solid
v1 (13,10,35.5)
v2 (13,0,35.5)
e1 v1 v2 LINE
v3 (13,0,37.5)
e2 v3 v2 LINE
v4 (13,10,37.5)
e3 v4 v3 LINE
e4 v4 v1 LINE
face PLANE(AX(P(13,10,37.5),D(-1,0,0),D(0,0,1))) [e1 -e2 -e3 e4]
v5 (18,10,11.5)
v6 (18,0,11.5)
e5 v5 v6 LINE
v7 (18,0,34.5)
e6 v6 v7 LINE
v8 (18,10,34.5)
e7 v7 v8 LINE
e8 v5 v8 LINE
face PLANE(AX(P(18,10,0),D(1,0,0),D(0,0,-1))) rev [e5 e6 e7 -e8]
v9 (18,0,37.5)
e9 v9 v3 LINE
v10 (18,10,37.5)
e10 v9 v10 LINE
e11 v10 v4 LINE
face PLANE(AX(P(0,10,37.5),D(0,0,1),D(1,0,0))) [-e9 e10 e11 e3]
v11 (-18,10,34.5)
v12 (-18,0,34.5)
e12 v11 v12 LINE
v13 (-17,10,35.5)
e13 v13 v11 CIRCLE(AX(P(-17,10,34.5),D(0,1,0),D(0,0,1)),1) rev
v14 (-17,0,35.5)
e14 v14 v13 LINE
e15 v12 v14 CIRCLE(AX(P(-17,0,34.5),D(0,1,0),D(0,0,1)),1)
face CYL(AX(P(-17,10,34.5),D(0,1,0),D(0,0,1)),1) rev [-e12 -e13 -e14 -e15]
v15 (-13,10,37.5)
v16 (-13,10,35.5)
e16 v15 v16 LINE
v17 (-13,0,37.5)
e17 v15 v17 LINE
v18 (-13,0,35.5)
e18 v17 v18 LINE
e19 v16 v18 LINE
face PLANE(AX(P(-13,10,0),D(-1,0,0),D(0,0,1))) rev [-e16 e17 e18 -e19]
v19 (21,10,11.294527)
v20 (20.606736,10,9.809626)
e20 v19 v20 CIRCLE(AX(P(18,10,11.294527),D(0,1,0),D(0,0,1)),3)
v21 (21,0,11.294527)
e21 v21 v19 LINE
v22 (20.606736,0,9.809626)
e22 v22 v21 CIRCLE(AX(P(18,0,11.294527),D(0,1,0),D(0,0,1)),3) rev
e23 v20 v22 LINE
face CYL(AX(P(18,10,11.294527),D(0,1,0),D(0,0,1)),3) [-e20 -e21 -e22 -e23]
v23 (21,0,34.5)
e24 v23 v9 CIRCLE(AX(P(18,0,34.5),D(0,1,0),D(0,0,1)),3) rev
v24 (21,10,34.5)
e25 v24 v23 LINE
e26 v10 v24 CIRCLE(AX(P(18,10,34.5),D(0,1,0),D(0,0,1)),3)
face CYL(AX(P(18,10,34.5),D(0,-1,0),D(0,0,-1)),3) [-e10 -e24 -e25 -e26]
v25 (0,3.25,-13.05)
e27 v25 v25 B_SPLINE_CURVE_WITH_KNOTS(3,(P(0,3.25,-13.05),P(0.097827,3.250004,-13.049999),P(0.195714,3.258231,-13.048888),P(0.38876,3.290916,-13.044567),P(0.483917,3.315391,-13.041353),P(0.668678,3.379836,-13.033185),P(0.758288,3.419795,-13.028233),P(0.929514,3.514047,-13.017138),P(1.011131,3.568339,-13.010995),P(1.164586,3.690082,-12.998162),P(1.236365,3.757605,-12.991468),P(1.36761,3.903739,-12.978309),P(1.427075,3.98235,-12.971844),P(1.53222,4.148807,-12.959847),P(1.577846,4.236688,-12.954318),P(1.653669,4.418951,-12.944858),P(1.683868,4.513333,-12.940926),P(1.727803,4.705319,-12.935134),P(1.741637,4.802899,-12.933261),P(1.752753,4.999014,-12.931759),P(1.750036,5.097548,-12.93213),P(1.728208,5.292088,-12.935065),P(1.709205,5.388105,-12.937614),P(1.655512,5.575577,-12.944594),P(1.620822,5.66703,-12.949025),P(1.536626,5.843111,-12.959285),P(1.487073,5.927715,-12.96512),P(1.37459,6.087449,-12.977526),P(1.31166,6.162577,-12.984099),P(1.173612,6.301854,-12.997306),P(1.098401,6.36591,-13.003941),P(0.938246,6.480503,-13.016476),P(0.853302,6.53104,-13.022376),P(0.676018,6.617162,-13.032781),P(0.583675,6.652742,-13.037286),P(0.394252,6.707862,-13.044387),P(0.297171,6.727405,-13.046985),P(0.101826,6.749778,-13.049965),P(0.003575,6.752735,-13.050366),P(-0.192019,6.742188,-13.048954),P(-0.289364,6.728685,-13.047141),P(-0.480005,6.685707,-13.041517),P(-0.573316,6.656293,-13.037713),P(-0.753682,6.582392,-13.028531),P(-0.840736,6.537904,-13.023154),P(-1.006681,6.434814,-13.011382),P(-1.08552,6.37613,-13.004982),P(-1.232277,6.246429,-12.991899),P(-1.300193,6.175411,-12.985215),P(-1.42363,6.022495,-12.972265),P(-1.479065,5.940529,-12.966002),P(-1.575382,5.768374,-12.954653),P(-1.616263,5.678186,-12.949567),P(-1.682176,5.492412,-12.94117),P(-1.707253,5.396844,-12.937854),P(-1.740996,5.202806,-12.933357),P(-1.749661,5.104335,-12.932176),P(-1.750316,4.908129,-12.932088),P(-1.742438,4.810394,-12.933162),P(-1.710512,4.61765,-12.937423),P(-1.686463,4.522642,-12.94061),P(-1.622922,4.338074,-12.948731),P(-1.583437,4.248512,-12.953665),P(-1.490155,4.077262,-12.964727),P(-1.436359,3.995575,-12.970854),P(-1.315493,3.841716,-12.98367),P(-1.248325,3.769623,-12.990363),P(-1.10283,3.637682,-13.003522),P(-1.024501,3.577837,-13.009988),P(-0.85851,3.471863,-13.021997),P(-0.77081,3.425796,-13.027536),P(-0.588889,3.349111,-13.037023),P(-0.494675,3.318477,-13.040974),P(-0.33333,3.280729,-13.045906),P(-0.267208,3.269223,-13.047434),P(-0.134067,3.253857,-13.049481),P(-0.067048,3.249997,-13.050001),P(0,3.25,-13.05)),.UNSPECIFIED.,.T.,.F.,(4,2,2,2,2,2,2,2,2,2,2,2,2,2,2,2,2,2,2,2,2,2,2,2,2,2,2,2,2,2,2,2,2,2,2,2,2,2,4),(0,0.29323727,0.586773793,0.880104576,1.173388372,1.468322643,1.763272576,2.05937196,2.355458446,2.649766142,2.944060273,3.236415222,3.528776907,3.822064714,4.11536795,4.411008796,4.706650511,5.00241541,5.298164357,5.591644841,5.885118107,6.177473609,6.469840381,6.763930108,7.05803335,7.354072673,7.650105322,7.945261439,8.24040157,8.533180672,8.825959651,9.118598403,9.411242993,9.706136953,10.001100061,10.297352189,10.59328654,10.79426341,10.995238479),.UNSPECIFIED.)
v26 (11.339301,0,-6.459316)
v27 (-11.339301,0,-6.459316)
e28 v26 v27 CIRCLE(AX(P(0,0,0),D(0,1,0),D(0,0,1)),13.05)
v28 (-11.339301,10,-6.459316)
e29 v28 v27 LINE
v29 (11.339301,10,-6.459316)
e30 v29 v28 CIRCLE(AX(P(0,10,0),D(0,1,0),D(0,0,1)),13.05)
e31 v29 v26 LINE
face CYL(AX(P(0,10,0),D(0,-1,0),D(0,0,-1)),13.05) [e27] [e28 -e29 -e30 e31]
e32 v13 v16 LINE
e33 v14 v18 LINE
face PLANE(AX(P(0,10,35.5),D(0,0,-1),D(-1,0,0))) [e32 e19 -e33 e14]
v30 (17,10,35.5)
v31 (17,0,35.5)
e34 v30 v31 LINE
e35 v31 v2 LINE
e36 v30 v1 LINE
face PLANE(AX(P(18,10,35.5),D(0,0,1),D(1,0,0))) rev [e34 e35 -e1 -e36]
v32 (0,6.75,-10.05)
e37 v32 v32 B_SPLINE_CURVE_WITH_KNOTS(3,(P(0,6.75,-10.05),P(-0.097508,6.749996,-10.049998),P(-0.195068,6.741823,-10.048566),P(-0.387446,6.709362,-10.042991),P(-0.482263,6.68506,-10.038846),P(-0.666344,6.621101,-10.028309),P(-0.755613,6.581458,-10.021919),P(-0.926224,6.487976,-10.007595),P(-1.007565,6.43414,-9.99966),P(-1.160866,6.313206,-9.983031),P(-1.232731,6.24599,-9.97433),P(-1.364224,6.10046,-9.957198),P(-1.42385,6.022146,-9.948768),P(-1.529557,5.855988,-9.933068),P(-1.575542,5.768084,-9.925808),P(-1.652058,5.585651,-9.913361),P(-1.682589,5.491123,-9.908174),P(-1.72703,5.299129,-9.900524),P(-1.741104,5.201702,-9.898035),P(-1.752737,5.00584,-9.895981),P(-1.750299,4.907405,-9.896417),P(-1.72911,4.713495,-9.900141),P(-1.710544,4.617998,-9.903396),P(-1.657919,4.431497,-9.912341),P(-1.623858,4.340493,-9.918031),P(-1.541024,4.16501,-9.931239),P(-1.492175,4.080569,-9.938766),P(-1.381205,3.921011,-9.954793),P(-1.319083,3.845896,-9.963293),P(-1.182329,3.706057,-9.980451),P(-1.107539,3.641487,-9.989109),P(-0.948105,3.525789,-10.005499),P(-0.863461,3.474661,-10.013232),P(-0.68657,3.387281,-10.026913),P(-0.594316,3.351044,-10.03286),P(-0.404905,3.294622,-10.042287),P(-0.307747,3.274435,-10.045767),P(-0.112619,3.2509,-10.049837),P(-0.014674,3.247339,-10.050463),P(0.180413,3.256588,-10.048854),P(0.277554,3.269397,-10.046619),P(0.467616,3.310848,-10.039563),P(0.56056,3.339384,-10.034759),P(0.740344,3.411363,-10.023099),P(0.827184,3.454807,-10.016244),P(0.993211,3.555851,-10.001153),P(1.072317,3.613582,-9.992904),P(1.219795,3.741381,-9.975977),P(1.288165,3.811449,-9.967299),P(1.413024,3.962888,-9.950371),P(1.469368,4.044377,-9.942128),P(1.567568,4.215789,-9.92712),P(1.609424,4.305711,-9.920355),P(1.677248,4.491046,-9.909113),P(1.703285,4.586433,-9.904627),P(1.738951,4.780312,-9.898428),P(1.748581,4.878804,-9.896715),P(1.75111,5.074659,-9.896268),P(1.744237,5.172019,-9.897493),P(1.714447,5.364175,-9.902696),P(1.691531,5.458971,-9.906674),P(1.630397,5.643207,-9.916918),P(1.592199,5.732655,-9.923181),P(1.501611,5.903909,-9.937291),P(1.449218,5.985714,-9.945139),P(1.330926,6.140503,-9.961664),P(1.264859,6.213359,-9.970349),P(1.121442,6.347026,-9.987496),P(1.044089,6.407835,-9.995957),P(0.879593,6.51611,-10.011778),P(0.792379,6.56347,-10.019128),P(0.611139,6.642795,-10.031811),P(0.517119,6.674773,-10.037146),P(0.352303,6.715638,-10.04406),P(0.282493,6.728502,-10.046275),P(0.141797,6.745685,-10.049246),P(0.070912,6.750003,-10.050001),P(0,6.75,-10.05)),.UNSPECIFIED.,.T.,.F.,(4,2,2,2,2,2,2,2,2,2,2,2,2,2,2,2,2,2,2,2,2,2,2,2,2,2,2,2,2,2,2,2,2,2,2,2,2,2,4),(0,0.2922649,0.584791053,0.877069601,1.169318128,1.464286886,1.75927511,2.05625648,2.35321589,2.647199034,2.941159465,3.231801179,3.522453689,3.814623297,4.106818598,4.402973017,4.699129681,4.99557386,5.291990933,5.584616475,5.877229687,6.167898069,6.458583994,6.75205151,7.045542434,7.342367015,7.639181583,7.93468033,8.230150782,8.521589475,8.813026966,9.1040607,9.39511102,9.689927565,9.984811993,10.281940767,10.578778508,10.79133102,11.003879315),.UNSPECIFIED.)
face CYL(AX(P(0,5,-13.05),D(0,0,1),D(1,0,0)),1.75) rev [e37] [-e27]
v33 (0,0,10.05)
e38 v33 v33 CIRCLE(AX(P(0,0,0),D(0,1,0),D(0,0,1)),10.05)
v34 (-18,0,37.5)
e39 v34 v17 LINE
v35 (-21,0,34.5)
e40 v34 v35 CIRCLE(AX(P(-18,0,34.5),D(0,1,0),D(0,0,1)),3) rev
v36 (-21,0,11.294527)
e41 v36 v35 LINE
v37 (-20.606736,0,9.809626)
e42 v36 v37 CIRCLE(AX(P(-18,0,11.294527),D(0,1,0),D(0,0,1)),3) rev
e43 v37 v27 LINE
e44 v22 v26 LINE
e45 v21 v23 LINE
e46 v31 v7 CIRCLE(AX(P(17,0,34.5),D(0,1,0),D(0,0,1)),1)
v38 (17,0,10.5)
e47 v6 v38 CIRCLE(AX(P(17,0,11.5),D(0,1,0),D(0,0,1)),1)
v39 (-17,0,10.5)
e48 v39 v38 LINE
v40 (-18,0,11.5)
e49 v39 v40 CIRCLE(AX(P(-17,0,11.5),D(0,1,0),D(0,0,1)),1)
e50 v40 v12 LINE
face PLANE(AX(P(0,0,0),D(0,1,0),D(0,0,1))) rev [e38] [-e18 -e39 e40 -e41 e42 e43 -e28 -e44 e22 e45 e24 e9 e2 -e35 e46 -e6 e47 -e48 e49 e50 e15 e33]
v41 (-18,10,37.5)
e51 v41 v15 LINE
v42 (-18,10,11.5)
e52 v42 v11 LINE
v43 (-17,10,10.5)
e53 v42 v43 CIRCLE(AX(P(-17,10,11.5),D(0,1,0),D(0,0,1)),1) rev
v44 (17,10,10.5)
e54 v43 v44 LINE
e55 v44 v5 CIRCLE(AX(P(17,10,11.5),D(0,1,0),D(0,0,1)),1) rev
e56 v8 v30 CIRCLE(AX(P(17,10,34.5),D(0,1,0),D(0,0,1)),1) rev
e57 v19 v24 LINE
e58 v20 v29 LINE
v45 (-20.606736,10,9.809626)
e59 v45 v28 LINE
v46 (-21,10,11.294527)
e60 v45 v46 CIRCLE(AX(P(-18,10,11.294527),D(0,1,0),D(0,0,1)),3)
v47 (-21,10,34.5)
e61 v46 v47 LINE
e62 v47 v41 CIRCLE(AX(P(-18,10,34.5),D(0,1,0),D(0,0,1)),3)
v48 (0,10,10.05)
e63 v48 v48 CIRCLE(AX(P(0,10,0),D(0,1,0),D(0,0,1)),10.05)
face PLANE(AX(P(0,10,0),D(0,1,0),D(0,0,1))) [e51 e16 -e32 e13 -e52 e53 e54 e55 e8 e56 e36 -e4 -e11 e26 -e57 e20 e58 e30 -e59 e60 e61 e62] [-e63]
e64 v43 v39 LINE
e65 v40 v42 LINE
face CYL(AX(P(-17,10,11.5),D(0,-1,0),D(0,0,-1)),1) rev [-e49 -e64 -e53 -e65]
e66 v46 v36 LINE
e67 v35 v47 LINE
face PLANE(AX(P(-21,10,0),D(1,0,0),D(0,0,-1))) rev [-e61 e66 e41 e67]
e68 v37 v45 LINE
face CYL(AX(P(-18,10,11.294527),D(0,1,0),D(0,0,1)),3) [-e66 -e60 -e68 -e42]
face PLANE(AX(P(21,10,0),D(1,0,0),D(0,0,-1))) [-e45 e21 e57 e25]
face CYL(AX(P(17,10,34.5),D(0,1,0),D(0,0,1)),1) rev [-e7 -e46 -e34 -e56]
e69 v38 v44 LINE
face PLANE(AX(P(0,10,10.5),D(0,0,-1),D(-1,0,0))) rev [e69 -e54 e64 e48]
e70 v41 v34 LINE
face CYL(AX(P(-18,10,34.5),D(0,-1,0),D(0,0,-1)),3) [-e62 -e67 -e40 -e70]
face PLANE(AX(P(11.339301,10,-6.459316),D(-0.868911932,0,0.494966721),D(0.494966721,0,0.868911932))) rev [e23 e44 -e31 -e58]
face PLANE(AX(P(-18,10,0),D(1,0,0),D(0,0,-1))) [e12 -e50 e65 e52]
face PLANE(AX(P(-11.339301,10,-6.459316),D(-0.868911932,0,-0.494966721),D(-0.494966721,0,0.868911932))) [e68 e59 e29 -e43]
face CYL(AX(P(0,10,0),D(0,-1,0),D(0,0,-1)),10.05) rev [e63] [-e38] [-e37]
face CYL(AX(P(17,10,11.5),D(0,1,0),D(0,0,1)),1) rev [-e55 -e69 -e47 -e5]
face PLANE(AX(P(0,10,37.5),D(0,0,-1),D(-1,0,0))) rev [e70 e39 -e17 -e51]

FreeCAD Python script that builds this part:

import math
import FreeCAD as App
import Part
import Sketcher
Q = App.Units.Quantity


def edges_at(feature, points):
    """Names of the edges that pass closest to the given points."""
    edges = feature.Shape.Edges
    near = lambda p: min(range(len(edges)), key=lambda i: edges[i].distToShape(Part.Vertex(*p))[0])
    return sorted({f"Edge{near(p) + 1}" for p in points})

doc = App.newDocument("Part")
body = doc.addObject("PartDesign::Body", "Body")

# Sketch on XZ plane
sketch1 = body.newObject("Sketcher::SketchObject", "Sketch")
sketch1.AttachmentSupport = (doc.getObject("XZ_Plane"), [""])
sketch1.MapMode = "FlatFace"
sketch1.addGeometry(Part.LineSegment(App.Vector(-11.339301, -6.459316, 0), App.Vector(-21, 10.5, 0)), False)
sketch1.addGeometry(Part.LineSegment(App.Vector(-21, 10.5, 0), App.Vector(-21, 37.5, 0)), False)
sketch1.addGeometry(Part.LineSegment(App.Vector(-21, 37.5, 0), App.Vector(-13, 37.5, 0)), False)
sketch1.addGeometry(Part.LineSegment(App.Vector(-13, 37.5, 0), App.Vector(-13, 35.5, 0)), False)
sketch1.addGeometry(Part.LineSegment(App.Vector(-13, 35.5, 0), App.Vector(-18, 35.5, 0)), False)
sketch1.addGeometry(Part.LineSegment(App.Vector(-18, 35.5, 0), App.Vector(-18, 10.5, 0)), False)
sketch1.addGeometry(Part.LineSegment(App.Vector(-18, 10.5, 0), App.Vector(18, 10.5, 0)), False)
sketch1.addGeometry(Part.LineSegment(App.Vector(18, 10.5, 0), App.Vector(18, 35.5, 0)), False)
sketch1.addGeometry(Part.LineSegment(App.Vector(18, 35.5, 0), App.Vector(13, 35.5, 0)), False)
sketch1.addGeometry(Part.LineSegment(App.Vector(13, 35.5, 0), App.Vector(13, 37.5, 0)), False)
sketch1.addGeometry(Part.LineSegment(App.Vector(13, 37.5, 0), App.Vector(21, 37.5, 0)), False)
sketch1.addGeometry(Part.LineSegment(App.Vector(21, 37.5, 0), App.Vector(21, 10.5, 0)), False)
sketch1.addGeometry(Part.LineSegment(App.Vector(21, 10.5, 0), App.Vector(11.339301, -6.459316, 0)), False)
sketch1.addGeometry(Part.ArcOfCircle(Part.Circle(App.Vector(0, 0, 0), App.Vector(0, 0, 1), 13.05), math.radians(-150.332444), math.radians(-29.667556)), False)
sketch1.addGeometry(Part.Circle(App.Vector(0, 0, 0), App.Vector(0, 0, 1), 10.05), False)
sketch1.addConstraint(Sketcher.Constraint("Coincident", 0, 2, 1, 1))
sketch1.addConstraint(Sketcher.Constraint("Coincident", 1, 2, 2, 1))
sketch1.addConstraint(Sketcher.Constraint("Coincident", 2, 2, 3, 1))
sketch1.addConstraint(Sketcher.Constraint("Coincident", 3, 2, 4, 1))
sketch1.addConstraint(Sketcher.Constraint("Coincident", 4, 2, 5, 1))
sketch1.addConstraint(Sketcher.Constraint("Coincident", 5, 2, 6, 1))
sketch1.addConstraint(Sketcher.Constraint("Coincident", 6, 2, 7, 1))
sketch1.addConstraint(Sketcher.Constraint("Coincident", 7, 2, 8, 1))
sketch1.addConstraint(Sketcher.Constraint("Coincident", 8, 2, 9, 1))
sketch1.addConstraint(Sketcher.Constraint("Coincident", 9, 2, 10, 1))
sketch1.addConstraint(Sketcher.Constraint("Coincident", 10, 2, 11, 1))
sketch1.addConstraint(Sketcher.Constraint("Coincident", 11, 2, 12, 1))
sketch1.addConstraint(Sketcher.Constraint("Tangent", 12, 2, 13, 2))
sketch1.addConstraint(Sketcher.Constraint("Tangent", 13, 1, 0, 1))
sketch1.addConstraint(Sketcher.Constraint("Vertical", 1))
sketch1.addConstraint(Sketcher.Constraint("Horizontal", 2))
sketch1.addConstraint(Sketcher.Constraint("Vertical", 3))
sketch1.addConstraint(Sketcher.Constraint("Horizontal", 4))
sketch1.addConstraint(Sketcher.Constraint("Vertical", 5))
sketch1.addConstraint(Sketcher.Constraint("Horizontal", 6))
sketch1.addConstraint(Sketcher.Constraint("Vertical", 7))
sketch1.addConstraint(Sketcher.Constraint("Horizontal", 8))
sketch1.addConstraint(Sketcher.Constraint("Vertical", 9))
sketch1.addConstraint(Sketcher.Constraint("Horizontal", 10))
sketch1.addConstraint(Sketcher.Constraint("Vertical", 11))
sketch1.addConstraint(Sketcher.Constraint("Coincident", 13, 3, -1, 1))
sketch1.addConstraint(Sketcher.Constraint("Coincident", 14, 3, -1, 1))
sketch1.addConstraint(Sketcher.Constraint("Symmetric", 4, 2, 7, 2, -2))
sketch1.addConstraint(Sketcher.Constraint("Symmetric", 2, 2, 9, 2, -2))
sketch1.addConstraint(Sketcher.Constraint("Symmetric", 0, 2, 11, 2, -2))
sketch1.addConstraint(Sketcher.Constraint("Horizontal", 0, 2, 5, 2))
sketch1.addConstraint(Sketcher.Constraint("Diameter", 14, Q("20.1 mm")))
sketch1.addConstraint(Sketcher.Constraint("DistanceX", 2, 1, 2, 2, Q("8 mm")))
sketch1.addConstraint(Sketcher.Constraint("DistanceX", 4, 2, 4, 1, Q("5 mm")))
sketch1.addConstraint(Sketcher.Constraint("DistanceX", 6, 1, 6, 2, Q("36 mm")))
sketch1.addConstraint(Sketcher.Constraint("DistanceY", 1, 1, 1, 2, Q("27 mm")))
sketch1.addConstraint(Sketcher.Constraint("DistanceY", 3, 2, 3, 1, Q("2 mm")))
sketch1.addConstraint(Sketcher.Constraint("Radius", 13, Q("13.05 mm")))
sketch1.addConstraint(Sketcher.Constraint("DistanceY", -1, 1, 0, 2, Q("10.5 mm")))
pad1 = body.newObject("PartDesign::Pad", "Pad")
pad1.Profile = sketch1
pad1.Length = 10
pad1.Reversed = True
doc.recompute()

fillet = body.newObject("PartDesign::Fillet", "Fillet")
fillet.Base = (pad1, edges_at(pad1, [
    (21, 5, 37.5),
    (-21, 5, 37.5),
    (-21, 5, 10.5),
    (21, 5, 10.5),
]))
fillet.Radius = 3
doc.recompute()

fillet2 = body.newObject("PartDesign::Fillet", "Fillet001")
fillet2.Base = (fillet, edges_at(fillet, [
    (18, 5, 10.5),
    (-18, 5, 10.5),
    (-18, 5, 35.5),
    (18, 5, 35.5),
]))
fillet2.Radius = 1

# Sketch on XY plane
sketch2 = body.newObject("Sketcher::SketchObject", "Sketch001")
sketch2.AttachmentSupport = (doc.getObject("XY_Plane"), [""])
sketch2.MapMode = "FlatFace"
sketch2.addGeometry(Part.Circle(App.Vector(0, 5, 0), App.Vector(0, 0, 1), 1.75), False)
sketch2.addConstraint(Sketcher.Constraint("PointOnObject", 0, 3, -2))
sketch2.addConstraint(Sketcher.Constraint("Diameter", 0, Q("3.5 mm")))
sketch2.addConstraint(Sketcher.Constraint("DistanceY", -1, 1, 0, 3, Q("5 mm")))
pocket1 = body.newObject("PartDesign::Pocket", "Pocket")
pocket1.Profile = sketch2
pocket1.Type = "ThroughAll"

doc.recompute()
